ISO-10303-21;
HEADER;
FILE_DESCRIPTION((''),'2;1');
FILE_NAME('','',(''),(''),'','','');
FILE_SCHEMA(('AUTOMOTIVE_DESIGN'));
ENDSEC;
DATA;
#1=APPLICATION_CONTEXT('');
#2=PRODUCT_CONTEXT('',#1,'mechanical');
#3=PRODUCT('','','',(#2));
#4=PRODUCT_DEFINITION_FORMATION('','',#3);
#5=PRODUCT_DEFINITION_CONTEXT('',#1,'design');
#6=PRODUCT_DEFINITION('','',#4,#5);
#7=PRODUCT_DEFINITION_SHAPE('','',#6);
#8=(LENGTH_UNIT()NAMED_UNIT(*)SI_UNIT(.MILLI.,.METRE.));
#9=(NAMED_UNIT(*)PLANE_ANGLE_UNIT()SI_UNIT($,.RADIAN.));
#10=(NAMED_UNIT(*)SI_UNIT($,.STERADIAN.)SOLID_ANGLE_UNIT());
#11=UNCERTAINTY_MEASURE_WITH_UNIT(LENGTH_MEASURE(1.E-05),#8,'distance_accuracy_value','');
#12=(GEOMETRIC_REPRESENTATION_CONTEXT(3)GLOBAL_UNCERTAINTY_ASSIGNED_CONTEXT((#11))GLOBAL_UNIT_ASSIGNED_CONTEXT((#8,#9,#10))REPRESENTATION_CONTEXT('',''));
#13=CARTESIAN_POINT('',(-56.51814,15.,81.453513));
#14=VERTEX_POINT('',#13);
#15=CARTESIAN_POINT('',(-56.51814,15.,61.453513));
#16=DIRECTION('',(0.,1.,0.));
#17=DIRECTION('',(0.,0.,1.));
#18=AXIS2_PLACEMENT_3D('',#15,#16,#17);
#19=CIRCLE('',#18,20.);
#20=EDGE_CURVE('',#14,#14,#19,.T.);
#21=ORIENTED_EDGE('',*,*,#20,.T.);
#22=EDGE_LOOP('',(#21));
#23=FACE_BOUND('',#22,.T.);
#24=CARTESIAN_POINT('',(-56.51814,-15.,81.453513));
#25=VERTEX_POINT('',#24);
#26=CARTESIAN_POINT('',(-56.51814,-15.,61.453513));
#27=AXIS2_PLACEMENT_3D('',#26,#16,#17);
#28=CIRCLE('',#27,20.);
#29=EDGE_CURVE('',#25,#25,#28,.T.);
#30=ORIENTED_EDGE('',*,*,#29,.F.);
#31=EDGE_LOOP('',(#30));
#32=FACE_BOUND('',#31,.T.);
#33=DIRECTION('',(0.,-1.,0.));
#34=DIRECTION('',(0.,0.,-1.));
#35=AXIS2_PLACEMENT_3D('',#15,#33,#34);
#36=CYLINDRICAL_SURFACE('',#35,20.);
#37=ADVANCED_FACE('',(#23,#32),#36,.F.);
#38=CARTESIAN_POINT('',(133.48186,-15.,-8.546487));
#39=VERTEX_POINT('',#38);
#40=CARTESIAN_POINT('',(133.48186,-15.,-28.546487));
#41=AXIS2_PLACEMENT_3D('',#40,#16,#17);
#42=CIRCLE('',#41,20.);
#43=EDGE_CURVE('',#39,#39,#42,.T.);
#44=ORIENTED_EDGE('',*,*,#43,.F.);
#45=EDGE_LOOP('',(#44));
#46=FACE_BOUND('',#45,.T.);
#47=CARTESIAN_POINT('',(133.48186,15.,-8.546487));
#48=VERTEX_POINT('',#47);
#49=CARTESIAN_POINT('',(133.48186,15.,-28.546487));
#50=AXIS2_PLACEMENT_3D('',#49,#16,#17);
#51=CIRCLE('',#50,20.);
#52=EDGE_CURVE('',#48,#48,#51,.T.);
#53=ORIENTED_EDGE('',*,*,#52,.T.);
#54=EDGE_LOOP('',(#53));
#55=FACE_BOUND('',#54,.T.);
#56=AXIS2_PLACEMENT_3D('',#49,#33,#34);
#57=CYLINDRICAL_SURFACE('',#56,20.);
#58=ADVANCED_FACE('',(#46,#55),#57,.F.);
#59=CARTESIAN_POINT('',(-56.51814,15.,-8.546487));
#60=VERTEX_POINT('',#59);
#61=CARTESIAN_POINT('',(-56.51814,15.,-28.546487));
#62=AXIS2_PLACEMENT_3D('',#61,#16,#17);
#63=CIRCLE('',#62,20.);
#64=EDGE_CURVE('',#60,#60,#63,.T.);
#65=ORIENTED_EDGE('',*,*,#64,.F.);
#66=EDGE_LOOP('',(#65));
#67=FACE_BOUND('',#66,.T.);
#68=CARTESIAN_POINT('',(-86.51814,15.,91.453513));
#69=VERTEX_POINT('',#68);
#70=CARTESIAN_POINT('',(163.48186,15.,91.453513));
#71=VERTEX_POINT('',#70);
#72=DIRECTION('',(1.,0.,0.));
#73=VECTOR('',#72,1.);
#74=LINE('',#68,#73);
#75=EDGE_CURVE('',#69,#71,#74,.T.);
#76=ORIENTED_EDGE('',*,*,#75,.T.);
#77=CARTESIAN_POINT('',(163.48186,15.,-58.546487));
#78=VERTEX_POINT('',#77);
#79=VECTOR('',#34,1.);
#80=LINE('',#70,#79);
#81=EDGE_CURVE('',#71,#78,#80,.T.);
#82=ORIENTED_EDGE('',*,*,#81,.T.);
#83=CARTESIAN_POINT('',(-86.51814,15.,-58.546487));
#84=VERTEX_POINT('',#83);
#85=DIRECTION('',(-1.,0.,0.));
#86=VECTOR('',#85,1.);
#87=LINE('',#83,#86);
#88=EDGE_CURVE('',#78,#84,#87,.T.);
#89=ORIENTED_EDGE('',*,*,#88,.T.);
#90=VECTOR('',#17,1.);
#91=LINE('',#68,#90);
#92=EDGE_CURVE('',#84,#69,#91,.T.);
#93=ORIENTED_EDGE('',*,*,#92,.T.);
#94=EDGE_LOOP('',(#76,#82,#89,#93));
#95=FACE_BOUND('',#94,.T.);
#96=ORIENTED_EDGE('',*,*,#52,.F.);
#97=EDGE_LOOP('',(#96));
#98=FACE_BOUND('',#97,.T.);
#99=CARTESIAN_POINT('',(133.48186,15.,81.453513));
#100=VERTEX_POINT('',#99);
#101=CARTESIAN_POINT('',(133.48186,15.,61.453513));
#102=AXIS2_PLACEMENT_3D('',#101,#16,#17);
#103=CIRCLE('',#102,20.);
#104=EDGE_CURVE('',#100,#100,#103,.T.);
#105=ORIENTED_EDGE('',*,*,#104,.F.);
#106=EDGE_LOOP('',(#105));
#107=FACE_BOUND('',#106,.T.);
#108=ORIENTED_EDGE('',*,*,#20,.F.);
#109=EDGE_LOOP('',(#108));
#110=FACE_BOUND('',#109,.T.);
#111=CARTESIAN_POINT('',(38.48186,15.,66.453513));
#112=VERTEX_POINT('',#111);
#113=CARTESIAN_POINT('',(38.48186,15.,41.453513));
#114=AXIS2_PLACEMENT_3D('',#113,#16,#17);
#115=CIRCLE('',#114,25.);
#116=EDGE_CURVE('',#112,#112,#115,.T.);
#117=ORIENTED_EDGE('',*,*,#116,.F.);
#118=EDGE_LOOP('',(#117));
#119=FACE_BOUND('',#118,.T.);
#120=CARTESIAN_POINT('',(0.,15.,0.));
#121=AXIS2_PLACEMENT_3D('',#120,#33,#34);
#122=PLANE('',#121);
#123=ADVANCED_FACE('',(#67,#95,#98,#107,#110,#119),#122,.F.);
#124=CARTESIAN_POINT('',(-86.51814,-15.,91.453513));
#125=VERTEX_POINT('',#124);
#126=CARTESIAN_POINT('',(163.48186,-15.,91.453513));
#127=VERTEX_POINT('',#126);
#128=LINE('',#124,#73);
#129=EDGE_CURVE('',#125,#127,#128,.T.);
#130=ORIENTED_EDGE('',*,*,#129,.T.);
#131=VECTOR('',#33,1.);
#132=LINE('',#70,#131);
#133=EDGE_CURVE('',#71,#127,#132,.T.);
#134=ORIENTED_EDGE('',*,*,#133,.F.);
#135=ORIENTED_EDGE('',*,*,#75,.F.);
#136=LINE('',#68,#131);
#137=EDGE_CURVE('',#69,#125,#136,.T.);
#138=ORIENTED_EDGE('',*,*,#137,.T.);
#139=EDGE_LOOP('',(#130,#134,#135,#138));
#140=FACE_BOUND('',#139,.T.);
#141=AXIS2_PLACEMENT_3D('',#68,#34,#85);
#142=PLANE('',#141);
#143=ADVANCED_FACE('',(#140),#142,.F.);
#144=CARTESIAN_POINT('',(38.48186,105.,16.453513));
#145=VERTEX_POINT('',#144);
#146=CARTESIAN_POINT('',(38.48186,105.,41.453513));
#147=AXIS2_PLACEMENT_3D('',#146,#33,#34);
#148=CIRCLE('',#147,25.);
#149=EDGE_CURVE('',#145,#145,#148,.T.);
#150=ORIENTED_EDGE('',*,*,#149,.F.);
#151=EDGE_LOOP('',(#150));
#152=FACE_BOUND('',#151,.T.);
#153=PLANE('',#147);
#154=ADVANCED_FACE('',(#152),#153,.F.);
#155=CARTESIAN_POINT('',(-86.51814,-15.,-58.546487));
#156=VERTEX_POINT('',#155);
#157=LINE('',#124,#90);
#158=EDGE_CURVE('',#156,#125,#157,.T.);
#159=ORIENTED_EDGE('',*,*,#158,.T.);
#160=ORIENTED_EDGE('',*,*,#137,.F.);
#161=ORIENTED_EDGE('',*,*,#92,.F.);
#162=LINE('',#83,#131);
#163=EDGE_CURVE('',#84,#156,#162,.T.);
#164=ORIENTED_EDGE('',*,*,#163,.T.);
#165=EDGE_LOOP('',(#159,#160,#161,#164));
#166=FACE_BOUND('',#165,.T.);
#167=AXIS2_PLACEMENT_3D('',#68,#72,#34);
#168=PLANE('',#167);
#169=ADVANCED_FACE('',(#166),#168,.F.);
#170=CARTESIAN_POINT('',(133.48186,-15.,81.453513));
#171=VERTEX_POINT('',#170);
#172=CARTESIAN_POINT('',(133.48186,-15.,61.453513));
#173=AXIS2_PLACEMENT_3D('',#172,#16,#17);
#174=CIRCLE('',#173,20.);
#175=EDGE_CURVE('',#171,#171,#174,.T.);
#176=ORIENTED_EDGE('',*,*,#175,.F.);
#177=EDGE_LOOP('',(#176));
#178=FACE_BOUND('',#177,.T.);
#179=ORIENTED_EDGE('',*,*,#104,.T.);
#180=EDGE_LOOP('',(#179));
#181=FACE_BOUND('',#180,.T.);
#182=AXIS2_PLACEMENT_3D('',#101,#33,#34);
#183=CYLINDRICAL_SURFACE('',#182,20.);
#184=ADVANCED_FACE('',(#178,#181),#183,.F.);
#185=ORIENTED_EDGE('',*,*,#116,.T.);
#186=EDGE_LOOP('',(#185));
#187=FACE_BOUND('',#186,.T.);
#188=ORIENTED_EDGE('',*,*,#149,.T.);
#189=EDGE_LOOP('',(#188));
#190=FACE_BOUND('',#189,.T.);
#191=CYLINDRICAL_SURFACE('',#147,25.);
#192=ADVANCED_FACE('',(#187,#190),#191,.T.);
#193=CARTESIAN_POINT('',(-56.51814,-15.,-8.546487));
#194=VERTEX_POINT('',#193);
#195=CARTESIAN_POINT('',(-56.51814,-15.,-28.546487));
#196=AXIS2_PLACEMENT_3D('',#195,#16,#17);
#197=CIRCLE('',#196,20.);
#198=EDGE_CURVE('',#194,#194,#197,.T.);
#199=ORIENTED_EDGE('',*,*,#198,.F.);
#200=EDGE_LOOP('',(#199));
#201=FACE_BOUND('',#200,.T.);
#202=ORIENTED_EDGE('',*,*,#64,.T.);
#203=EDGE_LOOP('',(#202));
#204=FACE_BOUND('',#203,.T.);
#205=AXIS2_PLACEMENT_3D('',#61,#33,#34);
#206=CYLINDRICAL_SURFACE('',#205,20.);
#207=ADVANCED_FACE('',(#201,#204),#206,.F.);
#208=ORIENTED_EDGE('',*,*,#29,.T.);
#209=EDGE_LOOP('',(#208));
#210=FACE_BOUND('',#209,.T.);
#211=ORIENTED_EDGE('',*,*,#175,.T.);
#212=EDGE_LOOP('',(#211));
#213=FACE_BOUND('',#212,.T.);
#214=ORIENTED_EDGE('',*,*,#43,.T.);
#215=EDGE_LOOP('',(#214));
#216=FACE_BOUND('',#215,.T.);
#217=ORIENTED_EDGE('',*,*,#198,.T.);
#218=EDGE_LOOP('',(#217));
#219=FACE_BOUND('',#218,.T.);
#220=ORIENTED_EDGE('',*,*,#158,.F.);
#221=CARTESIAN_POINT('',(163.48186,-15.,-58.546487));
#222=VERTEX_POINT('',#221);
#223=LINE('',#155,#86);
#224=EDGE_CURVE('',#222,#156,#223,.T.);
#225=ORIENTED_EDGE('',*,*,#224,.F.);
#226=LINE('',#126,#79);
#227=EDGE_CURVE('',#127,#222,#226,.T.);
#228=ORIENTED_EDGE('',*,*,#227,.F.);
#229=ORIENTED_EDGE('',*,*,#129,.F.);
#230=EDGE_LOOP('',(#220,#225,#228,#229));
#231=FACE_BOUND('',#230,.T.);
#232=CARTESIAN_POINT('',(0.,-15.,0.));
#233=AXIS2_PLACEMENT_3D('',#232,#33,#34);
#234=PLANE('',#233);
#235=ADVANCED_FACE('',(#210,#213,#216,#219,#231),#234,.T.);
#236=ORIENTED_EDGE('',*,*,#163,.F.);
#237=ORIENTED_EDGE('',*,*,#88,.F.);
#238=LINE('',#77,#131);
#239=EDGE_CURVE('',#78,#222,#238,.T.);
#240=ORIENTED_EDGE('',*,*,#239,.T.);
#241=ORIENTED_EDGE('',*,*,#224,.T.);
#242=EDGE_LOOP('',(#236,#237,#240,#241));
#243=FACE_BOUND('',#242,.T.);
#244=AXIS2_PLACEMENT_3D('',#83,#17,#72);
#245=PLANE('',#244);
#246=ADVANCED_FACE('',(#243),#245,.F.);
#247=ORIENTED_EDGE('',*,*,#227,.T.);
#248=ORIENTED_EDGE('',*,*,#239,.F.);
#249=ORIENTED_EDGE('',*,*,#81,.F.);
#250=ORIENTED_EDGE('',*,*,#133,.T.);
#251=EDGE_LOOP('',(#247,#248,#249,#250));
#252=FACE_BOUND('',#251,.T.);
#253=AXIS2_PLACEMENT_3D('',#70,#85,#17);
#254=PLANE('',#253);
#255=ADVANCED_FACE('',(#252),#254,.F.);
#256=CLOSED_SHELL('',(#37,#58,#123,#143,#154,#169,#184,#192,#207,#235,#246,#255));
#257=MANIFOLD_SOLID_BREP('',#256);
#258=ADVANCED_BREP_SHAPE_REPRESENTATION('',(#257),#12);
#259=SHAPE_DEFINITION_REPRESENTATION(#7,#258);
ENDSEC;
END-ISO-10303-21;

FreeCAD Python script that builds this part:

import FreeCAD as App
import Part
import Sketcher


def add_polygon(sketch, points):
    """Adds a closed chain of lines whose ends are joined by coincident constraints."""
    first, n = sketch.GeometryCount, len(points)
    for a, b in zip(points, points[1:] + points[:1]):
        sketch.addGeometry(Part.LineSegment(App.Vector(*a, 0), App.Vector(*b, 0)), False)
    for i in range(n):
        sketch.addConstraint(Sketcher.Constraint("Coincident", first + i, 2, first + (i + 1) % n, 1))

doc = App.newDocument("Part")
body = doc.addObject("PartDesign::Body", "Body")

sketch1 = body.newObject("Sketcher::SketchObject", "Sketch")
sketch1.AttachmentSupport = (doc.getObject("XZ_Plane"), [""])
sketch1.MapMode = "FlatFace"
add_polygon(sketch1, [(-86.51814, -58.546487), (-86.51814, 91.453513), (163.48186, 91.453513), (163.48186, -58.546487)])
sketch1.addGeometry(Part.Circle(App.Vector(-56.51814, 61.453513, 0), App.Vector(0, 0, 1), 20), False)
sketch1.addGeometry(Part.Circle(App.Vector(133.48186, 61.453513, 0), App.Vector(0, 0, 1), 20), False)
sketch1.addGeometry(Part.Circle(App.Vector(38.48186, 41.453513, 0), App.Vector(0, 0, 1), 25), False)
sketch1.addGeometry(Part.Circle(App.Vector(-56.51814, -28.546487, 0), App.Vector(0, 0, 1), 20), False)
sketch1.addGeometry(Part.Circle(App.Vector(133.48186, -28.546487, 0), App.Vector(0, 0, 1), 20), False)
sketch1.addConstraint(Sketcher.Constraint("Vertical", 0))
sketch1.addConstraint(Sketcher.Constraint("Horizontal", 1))
sketch1.addConstraint(Sketcher.Constraint("Vertical", 2))
sketch1.addConstraint(Sketcher.Constraint("Horizontal", 3))
sketch1.addConstraint(Sketcher.Constraint("Equal", 4, 5))
sketch1.addConstraint(Sketcher.Constraint("Equal", 5, 7))
sketch1.addConstraint(Sketcher.Constraint("Equal", 7, 8))
sketch1.addConstraint(Sketcher.Constraint("Horizontal", 4, 3, 5, 3))
sketch1.addConstraint(Sketcher.Constraint("Horizontal", 7, 3, 8, 3))
sketch1.addConstraint(Sketcher.Constraint("Vertical", 4, 3, 7, 3))
sketch1.addConstraint(Sketcher.Constraint("Vertical", 5, 3, 8, 3))
sketch1.addConstraint(Sketcher.Constraint("Diameter", 4, 40.0))
sketch1.addConstraint(Sketcher.Constraint("Diameter", 6, 50.0))
sketch1.addConstraint(Sketcher.Constraint("DistanceX", 1, 1, 1, 2, 250.0))
sketch1.addConstraint(Sketcher.Constraint("DistanceY", 0, 1, 0, 2, 150.0))
sketch1.addConstraint(Sketcher.Constraint("DistanceX", 4, 3, 5, 3, 190.0))
sketch1.addConstraint(Sketcher.Constraint("DistanceX", 4, 3, 6, 3, 95.0))
sketch1.addConstraint(Sketcher.Constraint("DistanceY", 6, 3, 4, 3, 20.0))
sketch1.addConstraint(Sketcher.Constraint("DistanceY", 7, 3, 4, 3, 90.0))
sketch1.addConstraint(Sketcher.Constraint("DistanceX", 0, 2, 4, 3, 30.0))
sketch1.addConstraint(Sketcher.Constraint("DistanceY", 4, 3, 0, 2, 30.0))
sketch1.addConstraint(Sketcher.Constraint("DistanceX", 4, 3, -1, 1, 56.51814))
sketch1.addConstraint(Sketcher.Constraint("DistanceY", -1, 1, 4, 3, 61.453513))
pad1 = body.newObject("PartDesign::Pad", "Pad")
pad1.Profile = sketch1
pad1.Length = 30
pad1.Midplane = True

sketch2 = body.newObject("Sketcher::SketchObject", "Sketch001")
sketch2.AttachmentSupport = (doc.getObject("XZ_Plane"), [""])
sketch2.MapMode = "FlatFace"
sketch2.AttachmentOffset = App.Placement(App.Vector(0, 0, 15), App.Rotation())
sketch2.addGeometry(Part.Circle(App.Vector(38.48186, 41.453513, 0), App.Vector(0, 0, 1), 25), False)
sketch2.addConstraint(Sketcher.Constraint("Diameter", 0, 50.0))
sketch2.addConstraint(Sketcher.Constraint("DistanceX", -1, 1, 0, 3, 38.48186))
sketch2.addConstraint(Sketcher.Constraint("DistanceY", -1, 1, 0, 3, 41.453513))
pad2 = body.newObject("PartDesign::Pad", "Pad001")
pad2.Profile = sketch2
pad2.Type = "TwoLengths"
pad2.Length = 2
pad2.Length2 = 120

sketch3 = body.newObject("Sketcher::SketchObject", "Sketch002")
sketch3.AttachmentSupport = (doc.getObject("XZ_Plane"), [""])
sketch3.MapMode = "FlatFace"
sketch3.AttachmentOffset = App.Placement(App.Vector(0, 0, 17), App.Rotation())
sketch3.addGeometry(Part.Circle(App.Vector(38.48186, 41.453513, 0), App.Vector(0, 0, 1), 25), False)
sketch3.addConstraint(Sketcher.Constraint("Diameter", 0, 50.0))
sketch3.addConstraint(Sketcher.Constraint("DistanceX", -1, 1, 0, 3, 38.48186))
sketch3.addConstraint(Sketcher.Constraint("DistanceY", -1, 1, 0, 3, 41.453513))
pocket1 = body.newObject("PartDesign::Pocket", "Pocket")
pocket1.Profile = sketch3
pocket1.Length = 2

doc.recompute()
